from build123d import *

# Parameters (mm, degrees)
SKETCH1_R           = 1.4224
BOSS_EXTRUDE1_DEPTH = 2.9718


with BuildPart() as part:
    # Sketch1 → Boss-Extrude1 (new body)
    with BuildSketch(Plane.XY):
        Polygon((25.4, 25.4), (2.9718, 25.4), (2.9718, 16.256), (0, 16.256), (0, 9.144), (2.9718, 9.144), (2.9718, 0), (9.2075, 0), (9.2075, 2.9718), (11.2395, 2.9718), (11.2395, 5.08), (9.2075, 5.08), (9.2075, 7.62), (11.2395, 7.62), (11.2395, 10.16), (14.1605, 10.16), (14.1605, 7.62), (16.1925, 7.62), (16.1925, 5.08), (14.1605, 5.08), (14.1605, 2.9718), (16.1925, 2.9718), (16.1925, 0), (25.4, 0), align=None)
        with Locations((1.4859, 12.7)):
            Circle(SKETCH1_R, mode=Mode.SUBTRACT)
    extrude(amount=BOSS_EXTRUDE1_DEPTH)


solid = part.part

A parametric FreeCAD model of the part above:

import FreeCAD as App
import Part
import Sketcher

V = App.Vector
Q = App.Units.Quantity

doc = App.newDocument("Part")
body = doc.addObject("PartDesign::Body", "Body")

sketch1 = doc.addObject("Sketcher::SketchObject", "Sketch")
body.addObject(sketch1)
sketch1.AttachmentSupport = (doc.XY_Plane, [""])
sketch1.MapMode = "FlatFace"
sketch1.addGeometry(Part.LineSegment(V(25.4, 25.4, 0), V(3, 25.4, 0)), False)
sketch1.addGeometry(Part.LineSegment(V(3, 25.4, 0), V(3, 16.3, 0)), False)
sketch1.addGeometry(Part.LineSegment(V(3, 16.3, 0), V(0, 16.3, 0)), False)
sketch1.addGeometry(Part.LineSegment(V(0, 16.3, 0), V(0, 9.1, 0)), False)
sketch1.addGeometry(Part.LineSegment(V(0, 9.1, 0), V(3, 9.1, 0)), False)
sketch1.addGeometry(Part.LineSegment(V(3, 9.1, 0), V(3, 0, 0)), False)
sketch1.addGeometry(Part.LineSegment(V(3, 0, 0), V(9.2, 0, 0)), False)
sketch1.addGeometry(Part.LineSegment(V(9.2, 0, 0), V(9.2, 3, 0)), False)
sketch1.addGeometry(Part.LineSegment(V(9.2, 3, 0), V(11.2, 3, 0)), False)
sketch1.addGeometry(Part.LineSegment(V(11.2, 3, 0), V(11.2, 5.1, 0)), False)
sketch1.addGeometry(Part.LineSegment(V(11.2, 5.1, 0), V(9.2, 5.1, 0)), False)
sketch1.addGeometry(Part.LineSegment(V(9.2, 5.1, 0), V(9.2, 7.6, 0)), False)
sketch1.addGeometry(Part.LineSegment(V(9.2, 7.6, 0), V(11.2, 7.6, 0)), False)
sketch1.addGeometry(Part.LineSegment(V(11.2, 7.6, 0), V(11.2, 10.2, 0)), False)
sketch1.addGeometry(Part.LineSegment(V(11.2, 10.2, 0), V(14.2, 10.2, 0)), False)
sketch1.addGeometry(Part.LineSegment(V(14.2, 10.2, 0), V(14.2, 7.6, 0)), False)
sketch1.addGeometry(Part.LineSegment(V(14.2, 7.6, 0), V(16.2, 7.6, 0)), False)
sketch1.addGeometry(Part.LineSegment(V(16.2, 7.6, 0), V(16.2, 5.1, 0)), False)
sketch1.addGeometry(Part.LineSegment(V(16.2, 5.1, 0), V(14.2, 5.1, 0)), False)
sketch1.addGeometry(Part.LineSegment(V(14.2, 5.1, 0), V(14.2, 3, 0)), False)
sketch1.addGeometry(Part.LineSegment(V(14.2, 3, 0), V(16.2, 3, 0)), False)
sketch1.addGeometry(Part.LineSegment(V(16.2, 3, 0), V(16.2, 0, 0)), False)
sketch1.addGeometry(Part.LineSegment(V(16.2, 0, 0), V(25.4, 0, 0)), False)
sketch1.addGeometry(Part.LineSegment(V(25.4, 0, 0), V(25.4, 25.4, 0)), False)
sketch1.addGeometry(Part.Circle(V(1.5, 12.7, 0), V(0, 0, 1), 1.4), False)
sketch1.addConstraint(Sketcher.Constraint("Coincident", 0, 2, 1, 1))
sketch1.addConstraint(Sketcher.Constraint("Coincident", 1, 2, 2, 1))
sketch1.addConstraint(Sketcher.Constraint("Coincident", 2, 2, 3, 1))
sketch1.addConstraint(Sketcher.Constraint("Coincident", 3, 2, 4, 1))
sketch1.addConstraint(Sketcher.Constraint("Coincident", 4, 2, 5, 1))
sketch1.addConstraint(Sketcher.Constraint("Coincident", 5, 2, 6, 1))
sketch1.addConstraint(Sketcher.Constraint("Coincident", 6, 2, 7, 1))
sketch1.addConstraint(Sketcher.Constraint("Coincident", 7, 2, 8, 1))
sketch1.addConstraint(Sketcher.Constraint("Coincident", 8, 2, 9, 1))
sketch1.addConstraint(Sketcher.Constraint("Coincident", 9, 2, 10, 1))
sketch1.addConstraint(Sketcher.Constraint("Coincident", 10, 2, 11, 1))
sketch1.addConstraint(Sketcher.Constraint("Coincident", 11, 2, 12, 1))
sketch1.addConstraint(Sketcher.Constraint("Coincident", 12, 2, 13, 1))
sketch1.addConstraint(Sketcher.Constraint("Coincident", 13, 2, 14, 1))
sketch1.addConstraint(Sketcher.Constraint("Coincident", 14, 2, 15, 1))
sketch1.addConstraint(Sketcher.Constraint("Coincident", 15, 2, 16, 1))
sketch1.addConstraint(Sketcher.Constraint("Coincident", 16, 2, 17, 1))
sketch1.addConstraint(Sketcher.Constraint("Coincident", 17, 2, 18, 1))
sketch1.addConstraint(Sketcher.Constraint("Coincident", 18, 2, 19, 1))
sketch1.addConstraint(Sketcher.Constraint("Coincident", 19, 2, 20, 1))
sketch1.addConstraint(Sketcher.Constraint("Coincident", 20, 2, 21, 1))
sketch1.addConstraint(Sketcher.Constraint("Coincident", 21, 2, 22, 1))
sketch1.addConstraint(Sketcher.Constraint("Coincident", 22, 2, 23, 1))
sketch1.addConstraint(Sketcher.Constraint("Coincident", 23, 2, 0, 1))
sketch1.addConstraint(Sketcher.Constraint("Horizontal", 0))
sketch1.addConstraint(Sketcher.Constraint("Vertical", 1))
sketch1.addConstraint(Sketcher.Constraint("Horizontal", 2))
sketch1.addConstraint(Sketcher.Constraint("Vertical", 3))
sketch1.addConstraint(Sketcher.Constraint("Horizontal", 4))
sketch1.addConstraint(Sketcher.Constraint("Vertical", 5))
sketch1.addConstraint(Sketcher.Constraint("Horizontal", 6))
sketch1.addConstraint(Sketcher.Constraint("Vertical", 7))
sketch1.addConstraint(Sketcher.Constraint("Horizontal", 8))
sketch1.addConstraint(Sketcher.Constraint("Vertical", 9))
sketch1.addConstraint(Sketcher.Constraint("Horizontal", 10))
sketch1.addConstraint(Sketcher.Constraint("Vertical", 11))
sketch1.addConstraint(Sketcher.Constraint("Horizontal", 12))
sketch1.addConstraint(Sketcher.Constraint("Vertical", 13))
sketch1.addConstraint(Sketcher.Constraint("Horizontal", 14))
sketch1.addConstraint(Sketcher.Constraint("Vertical", 15))
sketch1.addConstraint(Sketcher.Constraint("Horizontal", 16))
sketch1.addConstraint(Sketcher.Constraint("Vertical", 17))
sketch1.addConstraint(Sketcher.Constraint("Horizontal", 18))
sketch1.addConstraint(Sketcher.Constraint("Vertical", 19))
sketch1.addConstraint(Sketcher.Constraint("Horizontal", 20))
sketch1.addConstraint(Sketcher.Constraint("Vertical", 21))
sketch1.addConstraint(Sketcher.Constraint("Horizontal", 22))
sketch1.addConstraint(Sketcher.Constraint("Vertical", 23))
sketch1.addConstraint(Sketcher.Constraint("PointOnObject", 2, 2, -2))
sketch1.addConstraint(Sketcher.Constraint("PointOnObject", 5, 2, -1))
sketch1.addConstraint(Sketcher.Constraint("PointOnObject", 21, 2, -1))
sketch1.addConstraint(Sketcher.Constraint("Horizontal", 12, 2, 15, 2))
sketch1.addConstraint(Sketcher.Constraint("Horizontal", 10, 2, 17, 2))
sketch1.addConstraint(Sketcher.Constraint("Horizontal", 8, 2, 19, 2))
sketch1.addConstraint(Sketcher.Constraint("Vertical", 1, 2, 4, 2))
sketch1.addConstraint(Sketcher.Constraint("Vertical", 7, 2, 10, 2))
sketch1.addConstraint(Sketcher.Constraint("Vertical", 9, 2, 12, 2))
sketch1.addConstraint(Sketcher.Constraint("Vertical", 15, 2, 18, 2))
sketch1.addConstraint(Sketcher.Constraint("Vertical", 17, 2, 20, 2))
sketch1.addConstraint(Sketcher.Constraint("Equal", 12, 16))
sketch1.addConstraint(Sketcher.Constraint("Equal", 1, 5))
sketch1.addConstraint(Sketcher.Constraint("Equal", 4, 7))
sketch1.addConstraint(Sketcher.Constraint("Equal", 11, 13))
sketch1.addConstraint(Sketcher.Constraint("DistanceY", 23, 1, 23, 2, Q("1 in")))
sketch1.addConstraint(Sketcher.Constraint("Diameter", 24, Q("0.112 in")))
sketch1.addConstraint(Sketcher.Constraint("DistanceY", 11, 1, 11, 2, Q("0.1 in")))
sketch1.addConstraint(Sketcher.Constraint("DistanceX", -1, 1, 22, 2, Q("1 in")))
sketch1.addConstraint(Sketcher.Constraint("DistanceX", 8, 1, 8, 2, Q("0.08 in")))
sketch1.addConstraint(Sketcher.Constraint("DistanceY", 1, 2, 1, 1, Q("0.36 in")))
sketch1.addConstraint(Sketcher.Constraint("DistanceY", -1, 1, 24, 3, Q("0.5 in")))
sketch1.addConstraint(Sketcher.Constraint("DistanceY", -1, 1, 9, 2, Q("0.2 in")))
sketch1.addConstraint(Sketcher.Constraint("DistanceX", 0, 2, 0, 1, Q("0.883 in")))
sketch1.addConstraint(Sketcher.Constraint("DistanceX", 14, 1, 14, 2, Q("0.115 in")))
sketch1.addConstraint(Sketcher.Constraint("DistanceX", 6, 1, 6, 2, Q("0.2455 in")))
sketch1.addConstraint(Sketcher.Constraint("DistanceX", 24, 3, 6, 2, Q("0.304 in")))
pad1 = doc.addObject("PartDesign::Pad", "Pad")
body.addObject(pad1)
pad1.Profile = sketch1
pad1.Length = Q("0.117 in")

doc.recompute()
